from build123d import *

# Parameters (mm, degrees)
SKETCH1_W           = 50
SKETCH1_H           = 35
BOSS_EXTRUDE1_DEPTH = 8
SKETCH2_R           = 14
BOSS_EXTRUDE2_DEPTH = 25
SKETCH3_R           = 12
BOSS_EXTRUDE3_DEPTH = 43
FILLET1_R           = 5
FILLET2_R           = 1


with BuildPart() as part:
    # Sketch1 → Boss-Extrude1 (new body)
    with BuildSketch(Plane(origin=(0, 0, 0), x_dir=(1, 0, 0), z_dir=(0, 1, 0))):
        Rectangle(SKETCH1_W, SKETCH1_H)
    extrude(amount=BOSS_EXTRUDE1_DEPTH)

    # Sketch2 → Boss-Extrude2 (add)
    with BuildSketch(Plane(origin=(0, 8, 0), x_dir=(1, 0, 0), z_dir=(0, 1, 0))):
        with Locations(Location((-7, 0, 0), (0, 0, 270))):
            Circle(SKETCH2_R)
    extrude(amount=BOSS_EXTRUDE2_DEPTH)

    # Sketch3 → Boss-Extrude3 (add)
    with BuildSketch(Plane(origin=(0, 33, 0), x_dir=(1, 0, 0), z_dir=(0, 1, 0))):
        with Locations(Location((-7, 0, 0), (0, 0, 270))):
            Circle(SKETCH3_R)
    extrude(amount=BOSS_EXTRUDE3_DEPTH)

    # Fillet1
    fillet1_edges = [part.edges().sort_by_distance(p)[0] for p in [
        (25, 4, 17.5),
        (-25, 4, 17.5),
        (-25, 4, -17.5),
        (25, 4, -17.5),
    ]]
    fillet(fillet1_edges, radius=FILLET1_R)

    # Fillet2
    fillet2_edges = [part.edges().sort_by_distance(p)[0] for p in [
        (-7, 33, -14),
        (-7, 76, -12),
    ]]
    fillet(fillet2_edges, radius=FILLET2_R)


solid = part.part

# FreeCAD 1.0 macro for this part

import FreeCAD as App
import Part
import Sketcher


def edges_at(feature, points):
    """Names of the edges that pass closest to the given points."""
    edges = feature.Shape.Edges
    near = lambda p: min(range(len(edges)), key=lambda i: edges[i].distToShape(Part.Vertex(*p))[0])
    return sorted({f"Edge{near(p) + 1}" for p in points})

doc = App.newDocument("Part")
body = doc.addObject("PartDesign::Body", "Body")

# Sketch on XZ plane
sketch1 = body.newObject("Sketcher::SketchObject", "Sketch")
sketch1.AttachmentSupport = (doc.getObject("XZ_Plane"), [""])
sketch1.MapMode = "FlatFace"
sketch1.addGeometry(Part.LineSegment(App.Vector(-25, -18, 0), App.Vector(-25, 18, 0)), False)
sketch1.addGeometry(Part.LineSegment(App.Vector(-25, 18, 0), App.Vector(25, 18, 0)), False)
sketch1.addGeometry(Part.LineSegment(App.Vector(25, 18, 0), App.Vector(25, -18, 0)), False)
sketch1.addGeometry(Part.LineSegment(App.Vector(25, -18, 0), App.Vector(-25, -18, 0)), False)
sketch1.addConstraint(Sketcher.Constraint("Coincident", 0, 2, 1, 1))
sketch1.addConstraint(Sketcher.Constraint("Coincident", 1, 2, 2, 1))
sketch1.addConstraint(Sketcher.Constraint("Coincident", 2, 2, 3, 1))
sketch1.addConstraint(Sketcher.Constraint("Coincident", 3, 2, 0, 1))
sketch1.addConstraint(Sketcher.Constraint("Vertical", 0))
sketch1.addConstraint(Sketcher.Constraint("Horizontal", 1))
sketch1.addConstraint(Sketcher.Constraint("Vertical", 2))
sketch1.addConstraint(Sketcher.Constraint("Horizontal", 3))
sketch1.addConstraint(Sketcher.Constraint("Symmetric", 0, 2, 2, 2, -1, 1))
sketch1.addConstraint(Sketcher.Constraint("DistanceX", 1, 1, 1, 2, 50.0))
sketch1.addConstraint(Sketcher.Constraint("DistanceY", 0, 1, 0, 2, 35.0))
pad1 = body.newObject("PartDesign::Pad", "Pad")
pad1.Profile = sketch1
pad1.Length = 8
pad1.Reversed = True

# Sketch on XZ plane
sketch2 = body.newObject("Sketcher::SketchObject", "Sketch001")
sketch2.AttachmentSupport = (doc.getObject("XZ_Plane"), [""])
sketch2.MapMode = "FlatFace"
sketch2.AttachmentOffset = App.Placement(App.Vector(0, 0, -8), App.Rotation())
sketch2.addGeometry(Part.Circle(App.Vector(-7, 0, 0), App.Vector(0, 0, 1), 14), False)
sketch2.addConstraint(Sketcher.Constraint("PointOnObject", 0, 3, -1))
sketch2.addConstraint(Sketcher.Constraint("Diameter", 0, 28.0))
sketch2.addConstraint(Sketcher.Constraint("DistanceX", 0, 3, -1, 1, 7.0))
pad2 = body.newObject("PartDesign::Pad", "Pad001")
pad2.Profile = sketch2
pad2.Length = 25
pad2.Reversed = True

# Sketch on XZ plane
sketch3 = body.newObject("Sketcher::SketchObject", "Sketch002")
sketch3.AttachmentSupport = (doc.getObject("XZ_Plane"), [""])
sketch3.MapMode = "FlatFace"
sketch3.AttachmentOffset = App.Placement(App.Vector(0, 0, -33), App.Rotation())
sketch3.addGeometry(Part.Circle(App.Vector(-7, 0, 0), App.Vector(0, 0, 1), 12), False)
sketch3.addConstraint(Sketcher.Constraint("PointOnObject", 0, 3, -1))
sketch3.addConstraint(Sketcher.Constraint("Diameter", 0, 24.0))
sketch3.addConstraint(Sketcher.Constraint("DistanceX", 0, 3, -1, 1, 7.0))
pad3 = body.newObject("PartDesign::Pad", "Pad002")
pad3.Profile = sketch3
pad3.Length = 43
pad3.Reversed = True
doc.recompute()

fillet = body.newObject("PartDesign::Fillet", "Fillet")
fillet.Base = (pad3, edges_at(pad3, [
    (25, 4, 17.5),
    (-25, 4, 17.5),
    (-25, 4, -17.5),
    (25, 4, -17.5),
]))
fillet.Radius = 5
doc.recompute()

fillet2 = body.newObject("PartDesign::Fillet", "Fillet001")
fillet2.Base = (fillet, edges_at(fillet, [(-7, 33, -14), (-7, 76, -12)]))
fillet2.Radius = 1

doc.recompute()
